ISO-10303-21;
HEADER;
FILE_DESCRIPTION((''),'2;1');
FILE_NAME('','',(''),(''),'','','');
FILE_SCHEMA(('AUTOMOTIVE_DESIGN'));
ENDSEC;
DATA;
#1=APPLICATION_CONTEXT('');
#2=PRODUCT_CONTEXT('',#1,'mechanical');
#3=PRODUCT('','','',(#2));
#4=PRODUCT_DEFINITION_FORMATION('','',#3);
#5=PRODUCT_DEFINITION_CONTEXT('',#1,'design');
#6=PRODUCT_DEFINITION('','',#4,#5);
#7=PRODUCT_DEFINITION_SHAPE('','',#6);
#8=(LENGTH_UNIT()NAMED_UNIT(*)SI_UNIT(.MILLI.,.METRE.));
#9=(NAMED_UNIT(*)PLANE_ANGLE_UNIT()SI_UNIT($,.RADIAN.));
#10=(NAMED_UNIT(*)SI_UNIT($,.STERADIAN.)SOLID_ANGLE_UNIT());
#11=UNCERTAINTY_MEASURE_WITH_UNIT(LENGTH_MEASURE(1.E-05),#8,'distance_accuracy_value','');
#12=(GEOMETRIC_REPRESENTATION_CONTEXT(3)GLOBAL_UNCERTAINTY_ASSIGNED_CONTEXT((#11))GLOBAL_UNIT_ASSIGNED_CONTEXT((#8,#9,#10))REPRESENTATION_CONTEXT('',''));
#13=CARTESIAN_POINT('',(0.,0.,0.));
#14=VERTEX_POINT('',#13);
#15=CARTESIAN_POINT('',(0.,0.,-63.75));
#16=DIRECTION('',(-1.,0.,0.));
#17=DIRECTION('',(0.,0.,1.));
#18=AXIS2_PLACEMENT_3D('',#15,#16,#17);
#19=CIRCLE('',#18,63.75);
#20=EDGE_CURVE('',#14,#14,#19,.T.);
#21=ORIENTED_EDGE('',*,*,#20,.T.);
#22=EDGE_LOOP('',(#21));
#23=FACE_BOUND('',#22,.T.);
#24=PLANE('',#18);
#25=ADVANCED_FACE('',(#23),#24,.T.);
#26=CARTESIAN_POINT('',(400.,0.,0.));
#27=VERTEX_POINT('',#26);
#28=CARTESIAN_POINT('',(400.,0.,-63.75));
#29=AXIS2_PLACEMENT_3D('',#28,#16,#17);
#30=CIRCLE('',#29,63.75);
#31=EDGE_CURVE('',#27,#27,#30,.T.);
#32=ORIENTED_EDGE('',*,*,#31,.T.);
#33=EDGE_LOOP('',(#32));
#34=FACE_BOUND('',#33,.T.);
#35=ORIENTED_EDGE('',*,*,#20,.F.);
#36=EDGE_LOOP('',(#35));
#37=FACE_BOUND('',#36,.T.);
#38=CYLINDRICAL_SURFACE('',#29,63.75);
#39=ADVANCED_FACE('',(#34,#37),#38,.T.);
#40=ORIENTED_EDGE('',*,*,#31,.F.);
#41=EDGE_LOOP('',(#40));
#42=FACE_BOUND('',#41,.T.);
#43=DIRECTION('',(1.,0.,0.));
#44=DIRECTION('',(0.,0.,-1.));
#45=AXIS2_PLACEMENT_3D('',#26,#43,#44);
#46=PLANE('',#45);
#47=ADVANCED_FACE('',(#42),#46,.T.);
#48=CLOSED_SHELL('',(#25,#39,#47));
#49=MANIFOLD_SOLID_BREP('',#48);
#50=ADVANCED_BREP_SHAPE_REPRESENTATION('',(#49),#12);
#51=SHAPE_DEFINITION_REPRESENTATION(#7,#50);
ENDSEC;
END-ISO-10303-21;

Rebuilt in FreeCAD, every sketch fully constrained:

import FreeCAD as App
import Part
import Sketcher
from FreeCAD import Vector
Q = App.Units.Quantity

doc = App.newDocument("Part")
params = doc.addObject("Spreadsheet::Sheet", "Params")
for row, (alias, value) in enumerate([
    ("sketch1_width", "400 mm"),
    ("sketch1_height", "63.75 mm"),
    ("revolution_angle", "360 deg"),
], start=1):
    params.set(f"A{row}", alias)
    params.set(f"B{row}", "=" + value)
    params.setAlias(f"B{row}", alias)

body = doc.addObject("PartDesign::Body", "Body")

sketch1 = doc.addObject("Sketcher::SketchObject", "Sketch")
body.addObject(sketch1)
sketch1.AttachmentSupport = (doc.XZ_Plane, [""])
sketch1.MapMode = "FlatFace"
sketch1.addGeometry(Part.LineSegment(Vector(0, -63.75, 0), Vector(0, 0, 0)), False)
sketch1.addGeometry(Part.LineSegment(Vector(0, 0, 0), Vector(400, 0, 0)), False)
sketch1.addGeometry(Part.LineSegment(Vector(400, 0, 0), Vector(400, -63.75, 0)), False)
sketch1.addGeometry(Part.LineSegment(Vector(400, -63.75, 0), Vector(0, -63.75, 0)), False)
sketch1.addGeometry(Part.LineSegment(Vector(400, -63.75, 0), Vector(0, -63.75, 0)), True)
sketch1.addConstraint(Sketcher.Constraint("Coincident", 0, 2, 1, 1))
sketch1.addConstraint(Sketcher.Constraint("Coincident", 1, 2, 2, 1))
sketch1.addConstraint(Sketcher.Constraint("Coincident", 2, 2, 3, 1))
sketch1.addConstraint(Sketcher.Constraint("Coincident", 3, 2, 0, 1))
sketch1.addConstraint(Sketcher.Constraint("Vertical", 0))
sketch1.addConstraint(Sketcher.Constraint("Horizontal", 1))
sketch1.addConstraint(Sketcher.Constraint("Vertical", 2))
sketch1.addConstraint(Sketcher.Constraint("Horizontal", 3))
sketch1.addConstraint(Sketcher.Constraint("Horizontal", 4))
sketch1.addConstraint(Sketcher.Constraint("Coincident", 0, 2, -1, 1))
sketch1.addConstraint(Sketcher.Constraint("Coincident", 4, 1, 2, 2))
sketch1.addConstraint(Sketcher.Constraint("PointOnObject", 4, 2, -2))
sketch1.addConstraint(Sketcher.Constraint("DistanceX", 1, 1, 1, 2, Q("400 mm")))
sketch1.addConstraint(Sketcher.Constraint("DistanceY", 0, 1, 0, 2, Q("63.75 mm")))
sketch1.setExpression("Constraints[12]", "Params.sketch1_width")
sketch1.setExpression("Constraints[13]", "Params.sketch1_height")
revolution = doc.addObject("PartDesign::Revolution", "Revolution")
body.addObject(revolution)
revolution.Profile = sketch1
revolution.ReferenceAxis = (sketch1, ["Axis0"])
revolution.setExpression("Angle", "Params.revolution_angle")

doc.recompute()
